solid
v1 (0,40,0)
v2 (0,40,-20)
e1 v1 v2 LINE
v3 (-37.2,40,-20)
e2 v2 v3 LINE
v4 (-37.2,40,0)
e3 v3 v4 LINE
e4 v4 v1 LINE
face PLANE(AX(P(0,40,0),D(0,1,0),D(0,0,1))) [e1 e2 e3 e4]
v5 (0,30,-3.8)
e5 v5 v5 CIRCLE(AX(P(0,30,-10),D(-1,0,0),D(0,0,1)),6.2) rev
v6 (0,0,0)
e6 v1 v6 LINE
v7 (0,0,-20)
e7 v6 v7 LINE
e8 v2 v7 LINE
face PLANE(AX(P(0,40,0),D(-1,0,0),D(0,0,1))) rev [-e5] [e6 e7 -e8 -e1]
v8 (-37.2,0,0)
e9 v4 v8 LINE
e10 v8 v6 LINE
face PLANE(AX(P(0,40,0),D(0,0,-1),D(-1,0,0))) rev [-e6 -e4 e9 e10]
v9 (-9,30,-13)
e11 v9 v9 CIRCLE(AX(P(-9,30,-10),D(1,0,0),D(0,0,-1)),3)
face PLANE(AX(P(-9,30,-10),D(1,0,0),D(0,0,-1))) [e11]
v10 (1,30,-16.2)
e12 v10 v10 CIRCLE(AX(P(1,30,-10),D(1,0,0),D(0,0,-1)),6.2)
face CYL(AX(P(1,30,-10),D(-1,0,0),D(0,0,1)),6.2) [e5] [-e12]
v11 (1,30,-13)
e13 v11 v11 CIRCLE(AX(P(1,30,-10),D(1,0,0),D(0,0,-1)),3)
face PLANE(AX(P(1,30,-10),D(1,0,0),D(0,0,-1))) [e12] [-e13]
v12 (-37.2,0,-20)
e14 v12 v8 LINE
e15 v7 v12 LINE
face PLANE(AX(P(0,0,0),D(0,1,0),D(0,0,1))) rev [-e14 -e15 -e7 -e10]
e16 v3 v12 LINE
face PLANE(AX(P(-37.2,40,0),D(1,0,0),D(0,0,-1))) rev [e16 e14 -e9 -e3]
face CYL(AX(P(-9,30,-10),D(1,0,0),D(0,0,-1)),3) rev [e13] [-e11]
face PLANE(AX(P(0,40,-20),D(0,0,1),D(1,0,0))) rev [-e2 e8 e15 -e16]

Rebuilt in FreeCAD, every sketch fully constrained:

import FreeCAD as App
import Part
import Sketcher

V = App.Vector

doc = App.newDocument("Part")
params = doc.addObject("Spreadsheet::Sheet", "Params")
for row, (alias, value) in enumerate([
    ("sketch1_height", "20 mm"),
    ("sketch1_width", "37.2 mm"),
    ("pad1_length", "40 mm"),
    ("sketch2_diameter", "12.4 mm"),
    ("pad2_length", "1 mm"),
    ("sketch3_diameter", "6 mm"),
    ("pocket1_length", "10 mm"),
], start=1):
    params.set(f"A{row}", alias)
    params.set(f"B{row}", "=" + value)
    params.setAlias(f"B{row}", alias)

body = doc.addObject("PartDesign::Body", "Body")

# Sketch on XZ plane
sketch1 = doc.addObject("Sketcher::SketchObject", "Sketch")
body.addObject(sketch1)
sketch1.AttachmentSupport = (doc.XZ_Plane, [""])
sketch1.MapMode = "FlatFace"
sketch1.addGeometry([
    Part.LineSegment(V(-37.2, -20, 0), V(-37.2, 0, 0)),
    Part.LineSegment(V(-37.2, 0, 0), V(0, 0, 0)),
    Part.LineSegment(V(0, 0, 0), V(0, -20, 0)),
    Part.LineSegment(V(0, -20, 0), V(-37.2, -20, 0)),
], False)
sketch1.addConstraint([
    Sketcher.Constraint("Coincident", 0, 2, 1, 1),
    Sketcher.Constraint("Coincident", 1, 2, 2, 1),
    Sketcher.Constraint("Coincident", 2, 2, 3, 1),
    Sketcher.Constraint("Coincident", 3, 2, 0, 1),
    Sketcher.Constraint("Vertical", 0),
    Sketcher.Constraint("Horizontal", 1),
    Sketcher.Constraint("Vertical", 2),
    Sketcher.Constraint("Horizontal", 3),
    Sketcher.Constraint("Coincident", 1, 2, -1, 1),
    Sketcher.Constraint("DistanceY", 0, 1, 0, 2, 20.0),
    Sketcher.Constraint("DistanceX", 1, 1, 1, 2, 37.2),
])
sketch1.setExpression("Constraints[9]", "Params.sketch1_height")
sketch1.setExpression("Constraints[10]", "Params.sketch1_width")
pad1 = doc.addObject("PartDesign::Pad", "Pad")
body.addObject(pad1)
pad1.Profile = sketch1
pad1.setExpression("Length", "Params.pad1_length")
pad1.Reversed = True

# Sketch on YZ plane
sketch2 = doc.addObject("Sketcher::SketchObject", "Sketch001")
body.addObject(sketch2)
sketch2.AttachmentSupport = (doc.YZ_Plane, [""])
sketch2.MapMode = "FlatFace"
sketch2.addGeometry(Part.Circle(V(30, -10, 0), V(0, 0, 1), 6.2), False)
sketch2.addConstraint([
    Sketcher.Constraint("Diameter", 0, 12.4),
    Sketcher.Constraint("DistanceX", -1, 1, 0, 3, 30.0),
    Sketcher.Constraint("DistanceY", 0, 3, -1, 1, 10.0),
])
sketch2.setExpression("Constraints[0]", "Params.sketch2_diameter")
pad2 = doc.addObject("PartDesign::Pad", "Pad001")
body.addObject(pad2)
pad2.Profile = sketch2
pad2.setExpression("Length", "Params.pad2_length")

# Sketch on YZ plane
sketch3 = doc.addObject("Sketcher::SketchObject", "Sketch002")
body.addObject(sketch3)
sketch3.AttachmentSupport = (doc.YZ_Plane, [""])
sketch3.MapMode = "FlatFace"
sketch3.AttachmentOffset = App.Placement(V(0, 0, 1), App.Rotation())
sketch3.addGeometry(Part.Circle(V(30, -10, 0), V(0, 0, 1), 3), False)
sketch3.addConstraint([
    Sketcher.Constraint("Diameter", 0, 6.0),
    Sketcher.Constraint("DistanceX", -1, 1, 0, 3, 30.0),
    Sketcher.Constraint("DistanceY", 0, 3, -1, 1, 10.0),
])
sketch3.setExpression("Constraints[0]", "Params.sketch3_diameter")
pocket1 = doc.addObject("PartDesign::Pocket", "Pocket")
body.addObject(pocket1)
pocket1.Profile = sketch3
pocket1.setExpression("Length", "Params.pocket1_length")

doc.recompute()
